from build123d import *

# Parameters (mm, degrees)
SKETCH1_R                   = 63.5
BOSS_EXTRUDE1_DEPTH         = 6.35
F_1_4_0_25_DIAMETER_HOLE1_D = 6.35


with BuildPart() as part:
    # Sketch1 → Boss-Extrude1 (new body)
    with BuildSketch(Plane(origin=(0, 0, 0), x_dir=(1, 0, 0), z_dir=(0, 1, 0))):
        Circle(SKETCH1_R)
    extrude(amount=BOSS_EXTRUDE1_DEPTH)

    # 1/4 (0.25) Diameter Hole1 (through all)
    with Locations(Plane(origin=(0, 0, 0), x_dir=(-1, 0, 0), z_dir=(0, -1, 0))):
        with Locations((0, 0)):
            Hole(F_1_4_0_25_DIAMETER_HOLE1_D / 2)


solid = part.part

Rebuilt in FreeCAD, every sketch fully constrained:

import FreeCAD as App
import Part
import Sketcher
Q = App.Units.Quantity

doc = App.newDocument("Part")
body = doc.addObject("PartDesign::Body", "Body")

sketch1 = body.newObject("Sketcher::SketchObject", "Sketch")
sketch1.AttachmentSupport = (doc.getObject("XZ_Plane"), [""])
sketch1.MapMode = "FlatFace"
sketch1.addGeometry(Part.Circle(App.Vector(0, 0, 0), App.Vector(0, 0, 1), 64), False)
sketch1.addConstraint([
    Sketcher.Constraint("Coincident", 0, 3, -1, 1),
    Sketcher.Constraint("Diameter", 0, Q("5 in")),
])
pad1 = body.newObject("PartDesign::Pad", "Pad")
pad1.Profile = sketch1
pad1.Length = Q("0.25 in")
pad1.Reversed = True

sketch2 = body.newObject("Sketcher::SketchObject", "Sketch001")
sketch2.AttachmentSupport = (doc.getObject("XZ_Plane"), [""])
sketch2.MapMode = "FlatFace"
sketch2.addGeometry(Part.Circle(App.Vector(0, 0, 0), App.Vector(0, 0, 1), 3.2), False)
sketch2.addConstraint([
    Sketcher.Constraint("Coincident", 0, 3, -1, 1),
    Sketcher.Constraint("Diameter", 0, Q("0.25 in")),
])
doc.recompute()
hole = body.newObject("PartDesign::Hole", "Hole")
hole.Profile = sketch2
hole.ThreadType = "None"
hole.Diameter = Q("0.25 in")
hole.DepthType = "ThroughAll"

doc.recompute()
